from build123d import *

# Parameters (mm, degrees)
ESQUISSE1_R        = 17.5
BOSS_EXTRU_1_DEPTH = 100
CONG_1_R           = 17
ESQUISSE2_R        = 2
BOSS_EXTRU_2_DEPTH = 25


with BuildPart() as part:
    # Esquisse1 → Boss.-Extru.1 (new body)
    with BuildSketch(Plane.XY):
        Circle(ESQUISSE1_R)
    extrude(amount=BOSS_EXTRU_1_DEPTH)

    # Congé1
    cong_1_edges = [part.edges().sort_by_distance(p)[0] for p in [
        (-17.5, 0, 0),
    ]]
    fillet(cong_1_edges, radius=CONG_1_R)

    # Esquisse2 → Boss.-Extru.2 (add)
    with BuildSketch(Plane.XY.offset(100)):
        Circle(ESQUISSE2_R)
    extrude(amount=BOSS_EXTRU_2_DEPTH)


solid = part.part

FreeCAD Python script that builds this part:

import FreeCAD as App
import Part
import Sketcher
from FreeCAD import Vector
Q = App.Units.Quantity


def edges_at(feature, points):
    """Names of the edges that pass closest to the given points."""
    edges = feature.Shape.Edges
    near = lambda p: min(range(len(edges)), key=lambda i: edges[i].distToShape(Part.Vertex(*p))[0])
    return sorted({f"Edge{near(p) + 1}" for p in points})

doc = App.newDocument("Part")
body = doc.addObject("PartDesign::Body", "Body")

# Sketch on XY plane
sketch1 = doc.addObject("Sketcher::SketchObject", "Sketch")
body.addObject(sketch1)
sketch1.AttachmentSupport = (doc.XY_Plane, [""])
sketch1.MapMode = "FlatFace"
sketch1.addGeometry(Part.Circle(Vector(0, 0, 0), Vector(0, 0, 1), 18), False)
sketch1.addConstraint(Sketcher.Constraint("Coincident", 0, 3, -1, 1))
sketch1.addConstraint(Sketcher.Constraint("Diameter", 0, Q("35 mm")))
pad1 = doc.addObject("PartDesign::Pad", "Pad")
body.addObject(pad1)
pad1.Profile = sketch1
pad1.Length = 100
doc.recompute()

fillet = doc.addObject("PartDesign::Fillet", "Fillet")
body.addObject(fillet)
fillet.Base = (pad1, edges_at(pad1, [(-17.5, 0, 0)]))
fillet.Radius = 17

# Sketch on XY plane
sketch2 = doc.addObject("Sketcher::SketchObject", "Sketch001")
body.addObject(sketch2)
sketch2.AttachmentSupport = (doc.XY_Plane, [""])
sketch2.MapMode = "FlatFace"
sketch2.AttachmentOffset = App.Placement(Vector(0, 0, 100), App.Rotation())
sketch2.addGeometry(Part.Circle(Vector(0, 0, 0), Vector(0, 0, 1), 2), False)
sketch2.addConstraint(Sketcher.Constraint("Coincident", 0, 3, -1, 1))
sketch2.addConstraint(Sketcher.Constraint("Diameter", 0, Q("4 mm")))
pad2 = doc.addObject("PartDesign::Pad", "Pad001")
body.addObject(pad2)
pad2.Profile = sketch2
pad2.Length = 25

doc.recompute()
